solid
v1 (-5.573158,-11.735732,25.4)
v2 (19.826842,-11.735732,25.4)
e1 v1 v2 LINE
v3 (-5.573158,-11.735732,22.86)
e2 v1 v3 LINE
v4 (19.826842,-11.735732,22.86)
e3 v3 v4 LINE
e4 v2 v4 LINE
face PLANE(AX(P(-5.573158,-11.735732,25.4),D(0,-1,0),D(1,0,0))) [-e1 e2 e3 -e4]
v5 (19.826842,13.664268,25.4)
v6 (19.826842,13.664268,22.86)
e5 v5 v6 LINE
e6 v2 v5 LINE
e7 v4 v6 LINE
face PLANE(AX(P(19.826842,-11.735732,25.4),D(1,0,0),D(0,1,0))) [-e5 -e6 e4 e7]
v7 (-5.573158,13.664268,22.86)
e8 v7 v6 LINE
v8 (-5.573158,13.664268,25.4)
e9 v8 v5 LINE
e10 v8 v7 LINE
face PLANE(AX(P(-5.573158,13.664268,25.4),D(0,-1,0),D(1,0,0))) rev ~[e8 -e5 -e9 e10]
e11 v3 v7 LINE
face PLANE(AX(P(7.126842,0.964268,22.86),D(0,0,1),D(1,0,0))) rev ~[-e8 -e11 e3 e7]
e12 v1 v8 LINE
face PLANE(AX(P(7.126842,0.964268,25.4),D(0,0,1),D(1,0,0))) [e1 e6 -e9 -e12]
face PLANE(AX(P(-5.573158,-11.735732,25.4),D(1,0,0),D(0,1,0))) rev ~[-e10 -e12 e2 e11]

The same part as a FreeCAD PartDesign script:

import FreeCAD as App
import Part
import Sketcher
from FreeCAD import Vector
Q = App.Units.Quantity


def add_polygon(sketch, points):
    """Adds a closed chain of lines whose ends are joined by coincident constraints."""
    first, n = sketch.GeometryCount, len(points)
    for a, b in zip(points, points[1:] + points[:1]):
        sketch.addGeometry(Part.LineSegment(App.Vector(*a, 0), App.Vector(*b, 0)), False)
    for i in range(n):
        sketch.addConstraint(Sketcher.Constraint("Coincident", first + i, 2, first + (i + 1) % n, 1))

doc = App.newDocument("Part")
body = doc.addObject("PartDesign::Body", "Body")

sketch1 = doc.addObject("Sketcher::SketchObject", "Sketch")
body.addObject(sketch1)
sketch1.AttachmentSupport = (doc.XY_Plane, [""])
sketch1.MapMode = "FlatFace"
sketch1.AttachmentOffset = App.Placement(Vector(0, 0, 1 * 25.4), App.Rotation())
add_polygon(sketch1, [(-6, 14), (-6, -12), (20, -12), (20, 14)])
sketch1.addConstraint(Sketcher.Constraint("Vertical", 0))
sketch1.addConstraint(Sketcher.Constraint("Horizontal", 1))
sketch1.addConstraint(Sketcher.Constraint("Vertical", 2))
sketch1.addConstraint(Sketcher.Constraint("Horizontal", 3))
sketch1.addConstraint(Sketcher.Constraint("Equal", 3, 0))
sketch1.addConstraint(Sketcher.Constraint("DistanceX", 1, 1, 1, 2, Q("1 in")))
sketch1.addConstraint(Sketcher.Constraint("DistanceX", 0, 2, -1, 1, 5.573158))
sketch1.addConstraint(Sketcher.Constraint("DistanceY", 0, 2, -1, 1, 11.735732))
pad1 = doc.addObject("PartDesign::Pad", "Pad")
body.addObject(pad1)
pad1.Profile = sketch1
pad1.Length = Q("0.1 in")
pad1.Reversed = True

doc.recompute()
